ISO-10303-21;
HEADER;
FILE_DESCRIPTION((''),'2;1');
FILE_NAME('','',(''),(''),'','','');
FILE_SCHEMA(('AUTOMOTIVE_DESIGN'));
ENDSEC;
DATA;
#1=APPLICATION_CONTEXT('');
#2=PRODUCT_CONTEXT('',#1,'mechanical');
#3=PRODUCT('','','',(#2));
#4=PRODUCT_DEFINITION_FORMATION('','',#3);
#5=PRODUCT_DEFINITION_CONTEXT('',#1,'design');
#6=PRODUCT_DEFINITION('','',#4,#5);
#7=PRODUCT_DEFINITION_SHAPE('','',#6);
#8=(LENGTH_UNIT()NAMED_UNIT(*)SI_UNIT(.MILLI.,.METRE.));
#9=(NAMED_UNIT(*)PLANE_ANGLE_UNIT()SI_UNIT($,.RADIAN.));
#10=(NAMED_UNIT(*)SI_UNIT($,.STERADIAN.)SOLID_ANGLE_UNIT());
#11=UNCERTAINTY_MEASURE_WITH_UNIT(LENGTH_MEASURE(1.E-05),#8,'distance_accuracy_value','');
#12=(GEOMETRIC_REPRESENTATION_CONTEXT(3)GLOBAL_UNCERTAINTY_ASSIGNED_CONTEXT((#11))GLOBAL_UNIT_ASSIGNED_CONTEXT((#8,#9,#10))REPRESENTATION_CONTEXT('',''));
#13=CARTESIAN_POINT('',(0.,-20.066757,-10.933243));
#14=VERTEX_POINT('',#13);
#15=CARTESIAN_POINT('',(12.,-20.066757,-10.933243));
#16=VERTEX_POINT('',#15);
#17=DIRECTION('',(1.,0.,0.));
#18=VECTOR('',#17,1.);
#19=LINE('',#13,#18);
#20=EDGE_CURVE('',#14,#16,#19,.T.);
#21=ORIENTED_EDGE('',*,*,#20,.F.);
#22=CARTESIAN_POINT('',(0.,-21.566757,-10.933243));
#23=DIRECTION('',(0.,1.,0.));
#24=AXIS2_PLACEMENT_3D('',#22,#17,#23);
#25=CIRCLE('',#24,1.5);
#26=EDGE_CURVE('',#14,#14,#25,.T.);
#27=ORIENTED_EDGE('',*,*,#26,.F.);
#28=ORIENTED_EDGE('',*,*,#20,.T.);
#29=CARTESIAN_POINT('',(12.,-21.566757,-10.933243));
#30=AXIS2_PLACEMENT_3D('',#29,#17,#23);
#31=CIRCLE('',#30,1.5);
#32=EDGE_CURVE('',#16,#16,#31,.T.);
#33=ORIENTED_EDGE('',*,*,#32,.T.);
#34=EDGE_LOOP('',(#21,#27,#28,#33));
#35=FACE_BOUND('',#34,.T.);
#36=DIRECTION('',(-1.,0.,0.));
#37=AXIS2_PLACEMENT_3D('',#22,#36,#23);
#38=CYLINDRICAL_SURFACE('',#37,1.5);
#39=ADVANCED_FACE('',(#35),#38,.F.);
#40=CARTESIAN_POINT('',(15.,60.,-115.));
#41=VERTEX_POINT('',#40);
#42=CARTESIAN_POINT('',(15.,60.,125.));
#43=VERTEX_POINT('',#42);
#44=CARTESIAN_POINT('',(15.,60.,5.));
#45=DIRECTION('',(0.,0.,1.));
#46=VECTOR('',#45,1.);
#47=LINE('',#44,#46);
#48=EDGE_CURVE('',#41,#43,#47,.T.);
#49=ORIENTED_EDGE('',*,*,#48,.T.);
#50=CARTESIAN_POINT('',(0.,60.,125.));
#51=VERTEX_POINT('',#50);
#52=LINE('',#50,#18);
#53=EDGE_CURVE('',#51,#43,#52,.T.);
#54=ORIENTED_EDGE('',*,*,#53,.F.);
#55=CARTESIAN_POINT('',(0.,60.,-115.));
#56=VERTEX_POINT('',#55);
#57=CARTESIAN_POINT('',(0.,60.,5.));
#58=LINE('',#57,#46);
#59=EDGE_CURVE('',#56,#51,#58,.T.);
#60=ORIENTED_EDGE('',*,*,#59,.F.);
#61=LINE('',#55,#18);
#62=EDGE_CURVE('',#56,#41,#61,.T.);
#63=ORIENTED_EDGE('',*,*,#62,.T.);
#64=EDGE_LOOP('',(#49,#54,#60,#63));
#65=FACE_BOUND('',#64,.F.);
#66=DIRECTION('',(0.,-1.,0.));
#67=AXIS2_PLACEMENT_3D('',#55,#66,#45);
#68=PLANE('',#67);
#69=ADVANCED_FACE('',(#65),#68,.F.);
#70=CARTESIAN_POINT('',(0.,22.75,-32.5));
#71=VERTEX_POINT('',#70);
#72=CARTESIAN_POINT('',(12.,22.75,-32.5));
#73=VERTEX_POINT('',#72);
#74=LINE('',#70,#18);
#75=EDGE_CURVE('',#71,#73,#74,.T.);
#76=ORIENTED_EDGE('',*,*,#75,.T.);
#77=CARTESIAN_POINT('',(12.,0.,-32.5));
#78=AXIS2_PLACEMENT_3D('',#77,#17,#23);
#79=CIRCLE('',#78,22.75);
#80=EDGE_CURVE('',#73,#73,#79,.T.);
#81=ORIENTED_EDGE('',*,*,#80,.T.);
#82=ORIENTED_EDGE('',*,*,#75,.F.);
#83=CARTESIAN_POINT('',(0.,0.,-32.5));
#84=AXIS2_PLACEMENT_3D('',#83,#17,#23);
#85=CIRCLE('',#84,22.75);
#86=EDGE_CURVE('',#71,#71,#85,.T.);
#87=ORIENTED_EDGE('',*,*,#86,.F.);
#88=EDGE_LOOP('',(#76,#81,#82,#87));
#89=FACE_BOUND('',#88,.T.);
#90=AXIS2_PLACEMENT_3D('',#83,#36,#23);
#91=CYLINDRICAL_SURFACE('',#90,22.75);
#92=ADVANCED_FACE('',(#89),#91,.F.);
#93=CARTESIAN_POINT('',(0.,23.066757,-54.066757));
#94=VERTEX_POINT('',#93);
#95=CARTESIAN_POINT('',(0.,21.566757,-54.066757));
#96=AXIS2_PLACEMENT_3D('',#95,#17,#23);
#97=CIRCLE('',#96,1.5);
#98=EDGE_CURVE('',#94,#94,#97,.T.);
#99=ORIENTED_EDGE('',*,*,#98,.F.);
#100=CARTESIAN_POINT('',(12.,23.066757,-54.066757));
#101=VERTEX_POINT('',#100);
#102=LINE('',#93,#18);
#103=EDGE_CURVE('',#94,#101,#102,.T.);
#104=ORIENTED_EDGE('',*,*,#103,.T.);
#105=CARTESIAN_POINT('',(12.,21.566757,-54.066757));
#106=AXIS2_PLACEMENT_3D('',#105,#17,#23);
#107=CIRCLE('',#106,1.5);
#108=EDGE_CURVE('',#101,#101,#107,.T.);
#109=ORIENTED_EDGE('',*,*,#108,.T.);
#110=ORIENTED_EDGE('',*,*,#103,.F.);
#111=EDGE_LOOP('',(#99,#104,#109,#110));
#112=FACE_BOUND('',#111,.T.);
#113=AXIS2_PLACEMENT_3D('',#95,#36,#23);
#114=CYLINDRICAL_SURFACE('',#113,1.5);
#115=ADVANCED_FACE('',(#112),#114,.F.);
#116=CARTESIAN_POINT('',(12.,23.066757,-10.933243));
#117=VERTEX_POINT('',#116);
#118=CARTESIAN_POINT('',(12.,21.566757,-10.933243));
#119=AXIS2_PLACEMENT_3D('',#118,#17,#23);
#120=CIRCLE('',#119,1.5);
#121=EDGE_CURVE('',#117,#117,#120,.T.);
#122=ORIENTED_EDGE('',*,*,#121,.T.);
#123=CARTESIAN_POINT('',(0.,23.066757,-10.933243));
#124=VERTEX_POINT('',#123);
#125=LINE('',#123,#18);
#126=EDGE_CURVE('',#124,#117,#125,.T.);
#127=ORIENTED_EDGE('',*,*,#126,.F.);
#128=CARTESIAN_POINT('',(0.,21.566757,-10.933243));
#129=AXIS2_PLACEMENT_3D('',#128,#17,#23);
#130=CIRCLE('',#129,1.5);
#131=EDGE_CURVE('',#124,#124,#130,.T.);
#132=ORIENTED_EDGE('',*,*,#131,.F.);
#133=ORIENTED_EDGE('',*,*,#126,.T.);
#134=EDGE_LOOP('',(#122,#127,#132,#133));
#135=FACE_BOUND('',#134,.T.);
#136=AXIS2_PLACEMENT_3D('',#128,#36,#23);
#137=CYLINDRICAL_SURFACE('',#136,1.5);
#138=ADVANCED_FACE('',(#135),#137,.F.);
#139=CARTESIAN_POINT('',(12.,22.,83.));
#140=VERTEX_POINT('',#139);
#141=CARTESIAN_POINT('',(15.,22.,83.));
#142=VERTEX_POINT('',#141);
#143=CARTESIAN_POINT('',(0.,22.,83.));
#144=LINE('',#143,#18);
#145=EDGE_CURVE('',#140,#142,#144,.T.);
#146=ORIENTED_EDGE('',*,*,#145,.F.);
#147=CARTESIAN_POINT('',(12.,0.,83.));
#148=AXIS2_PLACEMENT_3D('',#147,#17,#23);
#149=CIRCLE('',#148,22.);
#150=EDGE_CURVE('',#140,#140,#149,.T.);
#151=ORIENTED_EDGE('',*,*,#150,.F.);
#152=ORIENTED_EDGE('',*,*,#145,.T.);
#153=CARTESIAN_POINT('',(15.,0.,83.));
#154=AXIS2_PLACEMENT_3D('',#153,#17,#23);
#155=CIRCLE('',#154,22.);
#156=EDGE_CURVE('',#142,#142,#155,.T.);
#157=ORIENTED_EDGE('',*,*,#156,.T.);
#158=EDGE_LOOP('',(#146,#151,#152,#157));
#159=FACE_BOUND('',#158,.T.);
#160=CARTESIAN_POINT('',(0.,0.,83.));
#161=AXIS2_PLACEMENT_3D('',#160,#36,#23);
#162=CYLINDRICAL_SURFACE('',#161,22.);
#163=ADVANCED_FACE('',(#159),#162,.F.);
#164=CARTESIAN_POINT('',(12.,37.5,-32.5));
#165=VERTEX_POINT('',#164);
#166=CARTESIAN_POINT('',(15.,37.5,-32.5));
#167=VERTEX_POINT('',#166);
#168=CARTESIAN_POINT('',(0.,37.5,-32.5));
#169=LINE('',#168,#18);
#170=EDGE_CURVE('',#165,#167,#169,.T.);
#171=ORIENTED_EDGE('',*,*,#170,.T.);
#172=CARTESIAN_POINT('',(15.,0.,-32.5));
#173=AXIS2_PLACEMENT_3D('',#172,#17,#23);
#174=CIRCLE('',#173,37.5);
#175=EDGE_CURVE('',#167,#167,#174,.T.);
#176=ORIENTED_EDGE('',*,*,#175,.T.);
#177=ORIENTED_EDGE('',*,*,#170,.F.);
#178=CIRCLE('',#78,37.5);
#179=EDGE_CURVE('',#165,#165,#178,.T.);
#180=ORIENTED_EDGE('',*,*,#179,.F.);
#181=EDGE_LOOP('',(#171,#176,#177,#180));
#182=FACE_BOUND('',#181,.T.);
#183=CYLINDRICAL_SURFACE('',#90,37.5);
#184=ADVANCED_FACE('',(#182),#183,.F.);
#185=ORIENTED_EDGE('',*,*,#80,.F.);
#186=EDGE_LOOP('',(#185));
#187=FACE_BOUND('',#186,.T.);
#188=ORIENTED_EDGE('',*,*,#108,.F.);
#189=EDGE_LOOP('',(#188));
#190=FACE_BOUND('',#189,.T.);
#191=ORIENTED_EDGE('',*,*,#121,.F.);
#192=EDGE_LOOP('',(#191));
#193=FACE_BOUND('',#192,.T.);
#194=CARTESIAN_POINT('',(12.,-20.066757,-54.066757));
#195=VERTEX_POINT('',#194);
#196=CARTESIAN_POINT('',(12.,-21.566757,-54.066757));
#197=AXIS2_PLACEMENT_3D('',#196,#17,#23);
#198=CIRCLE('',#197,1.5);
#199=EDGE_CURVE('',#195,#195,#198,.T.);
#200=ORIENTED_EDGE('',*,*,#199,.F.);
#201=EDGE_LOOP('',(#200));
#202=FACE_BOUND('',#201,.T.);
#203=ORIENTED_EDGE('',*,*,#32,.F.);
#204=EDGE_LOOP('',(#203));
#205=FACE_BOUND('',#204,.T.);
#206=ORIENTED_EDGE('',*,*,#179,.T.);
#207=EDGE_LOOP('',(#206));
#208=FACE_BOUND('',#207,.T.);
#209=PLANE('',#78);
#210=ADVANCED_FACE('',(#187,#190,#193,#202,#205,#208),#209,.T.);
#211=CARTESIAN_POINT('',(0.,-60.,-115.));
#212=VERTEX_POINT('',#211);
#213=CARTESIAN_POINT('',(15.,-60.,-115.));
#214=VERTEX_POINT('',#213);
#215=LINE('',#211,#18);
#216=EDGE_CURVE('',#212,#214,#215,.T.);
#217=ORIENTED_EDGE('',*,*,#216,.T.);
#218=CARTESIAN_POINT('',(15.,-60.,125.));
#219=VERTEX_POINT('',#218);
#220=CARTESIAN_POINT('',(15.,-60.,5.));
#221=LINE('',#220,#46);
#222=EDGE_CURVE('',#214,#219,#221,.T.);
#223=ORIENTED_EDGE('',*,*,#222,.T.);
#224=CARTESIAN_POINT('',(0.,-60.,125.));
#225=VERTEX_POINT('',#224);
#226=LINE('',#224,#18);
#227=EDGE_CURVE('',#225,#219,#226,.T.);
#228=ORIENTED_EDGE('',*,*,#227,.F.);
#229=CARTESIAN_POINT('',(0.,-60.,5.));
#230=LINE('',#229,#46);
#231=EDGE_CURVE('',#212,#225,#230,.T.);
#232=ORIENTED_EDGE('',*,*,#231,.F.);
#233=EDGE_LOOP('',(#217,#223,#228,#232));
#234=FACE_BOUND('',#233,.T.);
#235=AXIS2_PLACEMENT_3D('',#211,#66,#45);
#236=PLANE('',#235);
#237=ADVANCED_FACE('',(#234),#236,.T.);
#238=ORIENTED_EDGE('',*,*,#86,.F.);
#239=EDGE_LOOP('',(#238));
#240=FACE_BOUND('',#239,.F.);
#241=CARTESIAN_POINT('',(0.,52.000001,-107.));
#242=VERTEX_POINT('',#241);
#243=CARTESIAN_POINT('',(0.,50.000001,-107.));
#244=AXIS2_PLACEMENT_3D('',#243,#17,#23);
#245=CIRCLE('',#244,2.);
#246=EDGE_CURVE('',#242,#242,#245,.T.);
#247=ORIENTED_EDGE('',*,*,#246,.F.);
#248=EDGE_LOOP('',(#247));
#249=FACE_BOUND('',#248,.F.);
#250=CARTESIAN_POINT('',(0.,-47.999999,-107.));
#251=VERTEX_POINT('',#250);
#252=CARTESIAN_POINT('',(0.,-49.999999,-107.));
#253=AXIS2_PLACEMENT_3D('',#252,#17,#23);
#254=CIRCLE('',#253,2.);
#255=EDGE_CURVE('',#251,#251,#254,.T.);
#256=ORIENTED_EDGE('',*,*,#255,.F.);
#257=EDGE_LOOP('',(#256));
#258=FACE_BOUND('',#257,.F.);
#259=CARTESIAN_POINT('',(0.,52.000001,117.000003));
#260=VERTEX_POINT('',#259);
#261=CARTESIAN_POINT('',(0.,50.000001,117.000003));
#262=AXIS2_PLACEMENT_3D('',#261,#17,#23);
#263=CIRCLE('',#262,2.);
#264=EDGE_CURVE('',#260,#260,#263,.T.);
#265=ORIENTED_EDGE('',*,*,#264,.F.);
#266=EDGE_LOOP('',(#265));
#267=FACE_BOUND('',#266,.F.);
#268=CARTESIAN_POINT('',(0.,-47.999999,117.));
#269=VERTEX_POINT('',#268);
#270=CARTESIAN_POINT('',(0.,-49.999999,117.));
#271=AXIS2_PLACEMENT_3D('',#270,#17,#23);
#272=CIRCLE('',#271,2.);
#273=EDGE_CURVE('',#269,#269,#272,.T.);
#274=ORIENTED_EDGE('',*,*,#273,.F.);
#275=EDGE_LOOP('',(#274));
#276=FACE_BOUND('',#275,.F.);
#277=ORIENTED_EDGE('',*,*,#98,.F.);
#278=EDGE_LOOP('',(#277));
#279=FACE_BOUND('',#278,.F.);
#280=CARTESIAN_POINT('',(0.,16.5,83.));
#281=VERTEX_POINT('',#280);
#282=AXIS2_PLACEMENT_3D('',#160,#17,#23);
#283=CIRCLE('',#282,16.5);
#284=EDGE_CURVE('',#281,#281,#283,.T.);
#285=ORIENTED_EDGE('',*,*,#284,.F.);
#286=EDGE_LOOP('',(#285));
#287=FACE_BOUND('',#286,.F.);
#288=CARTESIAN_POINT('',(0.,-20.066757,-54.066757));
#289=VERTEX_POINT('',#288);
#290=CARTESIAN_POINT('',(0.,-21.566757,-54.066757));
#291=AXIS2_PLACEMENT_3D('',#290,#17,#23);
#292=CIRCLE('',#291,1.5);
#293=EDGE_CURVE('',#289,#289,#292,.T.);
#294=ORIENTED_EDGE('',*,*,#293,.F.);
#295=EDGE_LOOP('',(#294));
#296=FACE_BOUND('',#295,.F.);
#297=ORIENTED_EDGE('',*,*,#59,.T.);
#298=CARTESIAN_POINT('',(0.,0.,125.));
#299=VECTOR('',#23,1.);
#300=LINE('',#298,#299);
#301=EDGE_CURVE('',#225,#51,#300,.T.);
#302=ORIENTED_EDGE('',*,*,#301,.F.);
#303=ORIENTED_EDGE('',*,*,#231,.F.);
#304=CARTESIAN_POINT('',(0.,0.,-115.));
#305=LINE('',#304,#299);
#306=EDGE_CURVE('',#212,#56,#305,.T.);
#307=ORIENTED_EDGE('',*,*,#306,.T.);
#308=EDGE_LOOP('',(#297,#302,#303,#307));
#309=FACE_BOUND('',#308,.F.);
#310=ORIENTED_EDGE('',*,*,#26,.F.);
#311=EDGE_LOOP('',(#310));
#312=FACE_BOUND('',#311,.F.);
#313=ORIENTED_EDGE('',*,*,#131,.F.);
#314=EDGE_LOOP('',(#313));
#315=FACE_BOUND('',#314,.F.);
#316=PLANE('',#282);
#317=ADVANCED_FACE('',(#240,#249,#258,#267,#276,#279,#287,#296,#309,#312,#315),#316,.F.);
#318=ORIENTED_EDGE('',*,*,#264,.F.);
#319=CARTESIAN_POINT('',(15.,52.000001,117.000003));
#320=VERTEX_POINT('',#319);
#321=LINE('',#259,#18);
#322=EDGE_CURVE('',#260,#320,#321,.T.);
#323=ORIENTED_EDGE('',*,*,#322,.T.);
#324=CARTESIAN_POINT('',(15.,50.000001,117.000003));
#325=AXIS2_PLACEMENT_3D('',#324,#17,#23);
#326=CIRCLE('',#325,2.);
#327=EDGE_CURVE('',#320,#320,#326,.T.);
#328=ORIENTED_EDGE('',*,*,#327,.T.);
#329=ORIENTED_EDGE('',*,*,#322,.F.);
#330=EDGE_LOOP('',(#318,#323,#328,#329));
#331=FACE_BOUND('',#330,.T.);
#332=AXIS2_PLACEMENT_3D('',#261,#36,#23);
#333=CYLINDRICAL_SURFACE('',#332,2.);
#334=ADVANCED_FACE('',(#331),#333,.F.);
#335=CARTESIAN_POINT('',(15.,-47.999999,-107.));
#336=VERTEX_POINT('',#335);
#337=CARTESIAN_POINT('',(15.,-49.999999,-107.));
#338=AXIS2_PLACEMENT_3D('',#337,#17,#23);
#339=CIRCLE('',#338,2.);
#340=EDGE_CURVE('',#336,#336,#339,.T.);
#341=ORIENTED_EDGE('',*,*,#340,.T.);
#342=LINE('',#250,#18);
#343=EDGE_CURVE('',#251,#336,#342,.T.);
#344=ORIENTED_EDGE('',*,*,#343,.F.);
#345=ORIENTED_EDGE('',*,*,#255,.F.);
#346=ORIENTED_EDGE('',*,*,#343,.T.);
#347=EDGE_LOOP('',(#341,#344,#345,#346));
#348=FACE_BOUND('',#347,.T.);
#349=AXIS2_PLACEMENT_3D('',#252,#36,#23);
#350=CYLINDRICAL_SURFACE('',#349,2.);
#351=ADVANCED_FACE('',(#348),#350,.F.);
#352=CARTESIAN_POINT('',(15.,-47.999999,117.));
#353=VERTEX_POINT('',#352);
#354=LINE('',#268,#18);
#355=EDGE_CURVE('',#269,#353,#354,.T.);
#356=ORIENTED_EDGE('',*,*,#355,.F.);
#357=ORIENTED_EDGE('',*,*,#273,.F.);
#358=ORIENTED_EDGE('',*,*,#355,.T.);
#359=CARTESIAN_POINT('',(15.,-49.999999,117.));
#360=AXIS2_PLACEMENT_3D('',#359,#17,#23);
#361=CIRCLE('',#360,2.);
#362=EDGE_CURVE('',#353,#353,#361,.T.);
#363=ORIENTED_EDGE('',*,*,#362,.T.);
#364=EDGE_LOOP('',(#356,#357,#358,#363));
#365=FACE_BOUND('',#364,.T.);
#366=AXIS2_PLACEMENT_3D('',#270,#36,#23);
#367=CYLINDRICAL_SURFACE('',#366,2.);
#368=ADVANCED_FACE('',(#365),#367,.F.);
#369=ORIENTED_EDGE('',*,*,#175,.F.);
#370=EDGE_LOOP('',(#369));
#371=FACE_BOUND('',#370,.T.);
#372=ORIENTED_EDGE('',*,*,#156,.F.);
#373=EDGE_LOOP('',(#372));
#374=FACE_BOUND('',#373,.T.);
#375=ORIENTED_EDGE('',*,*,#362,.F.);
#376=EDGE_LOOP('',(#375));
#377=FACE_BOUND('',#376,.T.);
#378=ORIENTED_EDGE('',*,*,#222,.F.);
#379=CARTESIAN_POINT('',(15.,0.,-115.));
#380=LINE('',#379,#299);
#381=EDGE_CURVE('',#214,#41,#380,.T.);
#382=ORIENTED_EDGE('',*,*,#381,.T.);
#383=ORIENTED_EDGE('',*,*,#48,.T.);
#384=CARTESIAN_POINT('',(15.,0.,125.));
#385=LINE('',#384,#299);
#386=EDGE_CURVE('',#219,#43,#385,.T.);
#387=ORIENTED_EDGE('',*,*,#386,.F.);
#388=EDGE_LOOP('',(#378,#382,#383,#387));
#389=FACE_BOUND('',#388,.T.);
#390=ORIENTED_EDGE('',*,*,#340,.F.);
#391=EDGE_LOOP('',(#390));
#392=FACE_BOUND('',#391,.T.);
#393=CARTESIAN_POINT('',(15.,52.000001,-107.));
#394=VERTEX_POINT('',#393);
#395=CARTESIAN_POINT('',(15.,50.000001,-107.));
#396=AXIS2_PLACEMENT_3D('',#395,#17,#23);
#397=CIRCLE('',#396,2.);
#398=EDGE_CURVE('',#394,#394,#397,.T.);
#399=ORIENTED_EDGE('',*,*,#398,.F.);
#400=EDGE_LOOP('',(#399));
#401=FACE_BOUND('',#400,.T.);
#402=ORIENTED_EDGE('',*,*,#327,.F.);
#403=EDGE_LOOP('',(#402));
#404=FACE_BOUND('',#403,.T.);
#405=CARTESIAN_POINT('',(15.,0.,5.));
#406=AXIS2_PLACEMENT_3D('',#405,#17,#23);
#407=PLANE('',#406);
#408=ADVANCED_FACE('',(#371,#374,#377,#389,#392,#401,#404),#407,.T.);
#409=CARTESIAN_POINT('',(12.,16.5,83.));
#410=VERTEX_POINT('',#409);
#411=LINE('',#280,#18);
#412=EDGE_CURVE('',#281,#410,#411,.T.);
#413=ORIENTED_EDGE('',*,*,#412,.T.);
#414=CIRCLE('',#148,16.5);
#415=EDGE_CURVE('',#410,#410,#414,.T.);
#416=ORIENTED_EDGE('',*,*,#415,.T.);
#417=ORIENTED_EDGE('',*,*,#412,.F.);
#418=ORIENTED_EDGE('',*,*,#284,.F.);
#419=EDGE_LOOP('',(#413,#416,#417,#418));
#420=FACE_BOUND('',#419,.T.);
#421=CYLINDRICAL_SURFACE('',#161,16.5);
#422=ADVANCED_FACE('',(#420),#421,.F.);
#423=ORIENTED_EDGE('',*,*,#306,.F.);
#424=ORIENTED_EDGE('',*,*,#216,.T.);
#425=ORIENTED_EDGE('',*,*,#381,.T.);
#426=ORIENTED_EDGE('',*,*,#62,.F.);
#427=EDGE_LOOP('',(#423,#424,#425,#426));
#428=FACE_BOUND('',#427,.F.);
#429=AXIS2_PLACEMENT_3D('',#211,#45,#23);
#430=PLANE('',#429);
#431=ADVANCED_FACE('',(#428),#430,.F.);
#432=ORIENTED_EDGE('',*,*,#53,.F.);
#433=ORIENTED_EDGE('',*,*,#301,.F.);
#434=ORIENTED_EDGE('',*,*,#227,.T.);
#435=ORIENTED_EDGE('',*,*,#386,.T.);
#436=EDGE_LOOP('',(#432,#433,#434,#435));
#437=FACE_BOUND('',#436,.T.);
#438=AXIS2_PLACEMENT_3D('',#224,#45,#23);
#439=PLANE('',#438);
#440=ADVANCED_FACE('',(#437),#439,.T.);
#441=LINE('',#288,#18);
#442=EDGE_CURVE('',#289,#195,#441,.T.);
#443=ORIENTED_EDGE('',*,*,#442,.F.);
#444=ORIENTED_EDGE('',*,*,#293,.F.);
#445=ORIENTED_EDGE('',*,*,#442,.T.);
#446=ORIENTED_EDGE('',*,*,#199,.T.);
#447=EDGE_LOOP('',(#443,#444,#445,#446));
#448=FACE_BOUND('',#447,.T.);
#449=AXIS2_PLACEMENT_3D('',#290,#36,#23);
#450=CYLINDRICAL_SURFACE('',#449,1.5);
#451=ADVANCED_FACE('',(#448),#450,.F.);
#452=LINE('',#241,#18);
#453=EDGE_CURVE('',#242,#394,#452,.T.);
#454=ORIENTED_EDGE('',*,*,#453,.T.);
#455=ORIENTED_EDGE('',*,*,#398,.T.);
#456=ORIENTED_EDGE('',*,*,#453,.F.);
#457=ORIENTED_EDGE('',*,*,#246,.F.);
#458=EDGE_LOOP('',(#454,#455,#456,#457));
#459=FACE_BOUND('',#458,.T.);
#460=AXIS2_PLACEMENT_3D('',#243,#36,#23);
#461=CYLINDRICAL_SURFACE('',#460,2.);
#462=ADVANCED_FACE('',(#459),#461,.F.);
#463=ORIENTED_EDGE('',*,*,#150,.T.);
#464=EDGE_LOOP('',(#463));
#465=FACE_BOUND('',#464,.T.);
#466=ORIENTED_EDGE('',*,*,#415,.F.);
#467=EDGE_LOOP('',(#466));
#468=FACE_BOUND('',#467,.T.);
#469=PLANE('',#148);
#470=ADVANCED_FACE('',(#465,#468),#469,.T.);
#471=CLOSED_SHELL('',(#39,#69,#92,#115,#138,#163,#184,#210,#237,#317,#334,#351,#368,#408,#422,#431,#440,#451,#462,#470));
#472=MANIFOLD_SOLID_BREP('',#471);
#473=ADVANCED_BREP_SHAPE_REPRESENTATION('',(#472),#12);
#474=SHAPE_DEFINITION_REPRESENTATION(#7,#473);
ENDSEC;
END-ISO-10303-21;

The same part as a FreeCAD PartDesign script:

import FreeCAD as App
import Part
import Sketcher
Q = App.Units.Quantity


def add_polygon(sketch, points):
    """Adds a closed chain of lines whose ends are joined by coincident constraints."""
    first, n = sketch.GeometryCount, len(points)
    for a, b in zip(points, points[1:] + points[:1]):
        sketch.addGeometry(Part.LineSegment(App.Vector(*a, 0), App.Vector(*b, 0)), False)
    for i in range(n):
        sketch.addConstraint(Sketcher.Constraint("Coincident", first + i, 2, first + (i + 1) % n, 1))

doc = App.newDocument("Part")
body = doc.addObject("PartDesign::Body", "Body")

sketch1 = body.newObject("Sketcher::SketchObject", "Sketch")
sketch1.AttachmentSupport = (doc.getObject("YZ_Plane"), [""])
sketch1.MapMode = "FlatFace"
add_polygon(sketch1, [(-60, 125), (-60, -115), (60, -115), (60, 125)])
sketch1.addGeometry(Part.Circle(App.Vector(-49.999999, -107, 0), App.Vector(0, 0, 1), 2), False)
sketch1.addGeometry(Part.Circle(App.Vector(0, -32.5, 0), App.Vector(0, 0, 1), 37.5), False)
sketch1.addGeometry(Part.Circle(App.Vector(50.000001, -107, 0), App.Vector(0, 0, 1), 2), False)
sketch1.addGeometry(Part.Circle(App.Vector(-49.999999, 117, 0), App.Vector(0, 0, 1), 2), False)
sketch1.addGeometry(Part.Circle(App.Vector(0, 83, 0), App.Vector(0, 0, 1), 22), False)
sketch1.addGeometry(Part.Circle(App.Vector(50.000001, 117.000003, 0), App.Vector(0, 0, 1), 2), False)
sketch1.addConstraint([
    Sketcher.Constraint("Vertical", 0),
    Sketcher.Constraint("Horizontal", 1),
    Sketcher.Constraint("Vertical", 2),
    Sketcher.Constraint("Horizontal", 3),
    Sketcher.Constraint("Equal", 4, 6),
    Sketcher.Constraint("Equal", 6, 7),
    Sketcher.Constraint("Equal", 7, 9),
    Sketcher.Constraint("Symmetric", 4, 3, 6, 3, -2),
    Sketcher.Constraint("Symmetric", 7, 3, 9, 3, -2),
    Sketcher.Constraint("PointOnObject", 5, 3, -2),
    Sketcher.Constraint("PointOnObject", 8, 3, -2),
    Sketcher.Constraint("Vertical", 4, 3, 7, 3),
    Sketcher.Constraint("Diameter", 4, Q("4 mm")),
    Sketcher.Constraint("Diameter", 5, Q("75 mm")),
    Sketcher.Constraint("Diameter", 8, Q("44 mm")),
    Sketcher.Constraint("DistanceX", 1, 1, 1, 2, Q("120 mm")),
    Sketcher.Constraint("DistanceY", 0, 2, 0, 1, Q("240 mm")),
    Sketcher.Constraint("DistanceX", 4, 3, -1, 1, Q("49.999999 mm")),
    Sketcher.Constraint("DistanceY", 4, 3, -1, 1, Q("107 mm")),
    Sketcher.Constraint("DistanceY", -1, 1, 7, 3, Q("117 mm")),
    Sketcher.Constraint("DistanceY", -1, 1, 8, 3, Q("83 mm")),
    Sketcher.Constraint("DistanceX", 0, 2, -1, 1, Q("60 mm")),
    Sketcher.Constraint("DistanceY", 0, 2, -1, 1, Q("115 mm")),
    Sketcher.Constraint("DistanceY", 5, 3, -1, 1, Q("32.5 mm")),
])
pad1 = body.newObject("PartDesign::Pad", "Pad")
pad1.Profile = sketch1
pad1.Length = 15

sketch2 = body.newObject("Sketcher::SketchObject", "Sketch001")
sketch2.AttachmentSupport = (doc.getObject("YZ_Plane"), [""])
sketch2.MapMode = "FlatFace"
sketch2.addGeometry([
    Part.Circle(App.Vector(0, 83, 0), App.Vector(0, 0, 1), 22),
    Part.Circle(App.Vector(0, 83, 0), App.Vector(0, 0, 1), 16.5),
    Part.Circle(App.Vector(0, -32.5, 0), App.Vector(0, 0, 1), 37.5),
    Part.Circle(App.Vector(-21.566757, -54.066757, 0), App.Vector(0, 0, 1), 1.5),
    Part.Circle(App.Vector(21.566757, -54.066757, 0), App.Vector(0, 0, 1), 1.5),
    Part.Circle(App.Vector(-21.566757, -10.933243, 0), App.Vector(0, 0, 1), 1.5),
    Part.Circle(App.Vector(0, -32.5, 0), App.Vector(0, 0, 1), 22.75),
    Part.Circle(App.Vector(21.566757, -10.933243, 0), App.Vector(0, 0, 1), 1.5),
], False)
sketch2.addConstraint([
    Sketcher.Constraint("Coincident", 1, 3, 0, 3),
    Sketcher.Constraint("Coincident", 6, 3, 2, 3),
    Sketcher.Constraint("Equal", 3, 4),
    Sketcher.Constraint("Equal", 4, 5),
    Sketcher.Constraint("Equal", 5, 7),
    Sketcher.Constraint("Symmetric", 3, 3, 4, 3, -2),
    Sketcher.Constraint("Symmetric", 5, 3, 7, 3, -2),
    Sketcher.Constraint("PointOnObject", 0, 3, -2),
    Sketcher.Constraint("PointOnObject", 2, 3, -2),
    Sketcher.Constraint("Vertical", 3, 3, 5, 3),
    Sketcher.Constraint("Diameter", 0, Q("44 mm")),
    Sketcher.Constraint("Diameter", 1, Q("33 mm")),
    Sketcher.Constraint("Diameter", 2, Q("75 mm")),
    Sketcher.Constraint("Diameter", 3, Q("3 mm")),
    Sketcher.Constraint("Diameter", 6, Q("45.5 mm")),
    Sketcher.Constraint("DistanceY", -1, 1, 0, 3, Q("83 mm")),
    Sketcher.Constraint("DistanceY", 2, 3, -1, 1, Q("32.5 mm")),
    Sketcher.Constraint("DistanceX", 3, 3, -1, 1, Q("21.566757 mm")),
    Sketcher.Constraint("DistanceY", 3, 3, -1, 1, Q("54.066757 mm")),
    Sketcher.Constraint("DistanceY", 5, 3, -1, 1, Q("10.933243 mm")),
])
pad2 = body.newObject("PartDesign::Pad", "Pad001")
pad2.Profile = sketch2
pad2.Length = 12

doc.recompute()
